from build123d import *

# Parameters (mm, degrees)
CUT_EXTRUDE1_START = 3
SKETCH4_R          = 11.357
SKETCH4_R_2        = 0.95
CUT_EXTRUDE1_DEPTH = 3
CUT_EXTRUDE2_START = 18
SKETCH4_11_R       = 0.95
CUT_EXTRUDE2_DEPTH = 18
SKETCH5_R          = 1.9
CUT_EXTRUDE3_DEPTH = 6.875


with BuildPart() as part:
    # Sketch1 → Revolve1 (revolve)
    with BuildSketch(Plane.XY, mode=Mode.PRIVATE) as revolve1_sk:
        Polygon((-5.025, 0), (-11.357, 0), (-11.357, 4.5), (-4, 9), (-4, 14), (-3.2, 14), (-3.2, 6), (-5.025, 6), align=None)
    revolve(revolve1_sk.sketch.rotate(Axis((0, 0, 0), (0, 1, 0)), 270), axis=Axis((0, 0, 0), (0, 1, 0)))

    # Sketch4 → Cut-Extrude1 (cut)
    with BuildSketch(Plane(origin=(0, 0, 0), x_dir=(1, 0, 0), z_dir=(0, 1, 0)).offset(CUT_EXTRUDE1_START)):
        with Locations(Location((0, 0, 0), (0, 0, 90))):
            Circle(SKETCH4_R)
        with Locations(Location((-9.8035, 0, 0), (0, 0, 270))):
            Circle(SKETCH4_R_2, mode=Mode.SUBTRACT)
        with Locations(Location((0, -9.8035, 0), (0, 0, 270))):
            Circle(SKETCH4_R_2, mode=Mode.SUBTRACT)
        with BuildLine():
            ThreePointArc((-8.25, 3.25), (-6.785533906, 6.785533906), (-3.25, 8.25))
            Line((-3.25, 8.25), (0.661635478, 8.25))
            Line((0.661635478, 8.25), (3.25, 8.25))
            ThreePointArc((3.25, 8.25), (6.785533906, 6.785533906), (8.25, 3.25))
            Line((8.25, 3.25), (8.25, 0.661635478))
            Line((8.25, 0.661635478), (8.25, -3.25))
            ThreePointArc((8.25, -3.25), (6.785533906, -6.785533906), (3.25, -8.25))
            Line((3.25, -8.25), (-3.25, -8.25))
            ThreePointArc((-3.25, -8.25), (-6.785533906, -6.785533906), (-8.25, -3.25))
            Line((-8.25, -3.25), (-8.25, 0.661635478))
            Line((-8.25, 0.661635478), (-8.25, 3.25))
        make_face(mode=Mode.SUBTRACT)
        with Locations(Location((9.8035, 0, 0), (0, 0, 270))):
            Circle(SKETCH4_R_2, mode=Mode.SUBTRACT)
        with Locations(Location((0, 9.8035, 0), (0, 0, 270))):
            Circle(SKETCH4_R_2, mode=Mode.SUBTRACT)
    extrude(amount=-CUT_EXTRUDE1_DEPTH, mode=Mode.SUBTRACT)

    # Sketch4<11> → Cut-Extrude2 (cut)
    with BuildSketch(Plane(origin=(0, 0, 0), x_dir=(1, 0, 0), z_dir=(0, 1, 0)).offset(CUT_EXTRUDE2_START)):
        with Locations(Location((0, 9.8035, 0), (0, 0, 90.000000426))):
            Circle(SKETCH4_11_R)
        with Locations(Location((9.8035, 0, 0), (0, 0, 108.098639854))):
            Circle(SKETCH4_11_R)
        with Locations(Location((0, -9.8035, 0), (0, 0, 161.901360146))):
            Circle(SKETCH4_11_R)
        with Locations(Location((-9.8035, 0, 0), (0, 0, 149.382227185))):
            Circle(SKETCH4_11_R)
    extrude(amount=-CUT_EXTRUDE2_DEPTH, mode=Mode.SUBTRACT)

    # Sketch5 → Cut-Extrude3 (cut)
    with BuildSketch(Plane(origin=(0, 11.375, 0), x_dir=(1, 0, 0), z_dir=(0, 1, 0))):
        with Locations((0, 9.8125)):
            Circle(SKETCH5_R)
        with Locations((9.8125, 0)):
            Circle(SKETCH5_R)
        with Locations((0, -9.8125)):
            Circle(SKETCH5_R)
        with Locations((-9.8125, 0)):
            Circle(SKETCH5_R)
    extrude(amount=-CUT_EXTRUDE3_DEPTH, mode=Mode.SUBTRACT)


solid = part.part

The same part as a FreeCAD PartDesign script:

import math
import FreeCAD as App
import Part
import Sketcher
from FreeCAD import Vector
Q = App.Units.Quantity

doc = App.newDocument("Part")
body = doc.addObject("PartDesign::Body", "Body")

# Sketch on XY plane
sketch1 = body.newObject("Sketcher::SketchObject", "Sketch")
sketch1.AttachmentSupport = (doc.getObject("XY_Plane"), [""])
sketch1.MapMode = "FlatFace"
sketch1.addGeometry([
    Part.LineSegment(Vector(-11.4, 0, 0), Vector(-5, 0, 0)),  # 0
    Part.LineSegment(Vector(-5, 0, 0), Vector(-5, 6, 0)),  # 1
    Part.LineSegment(Vector(-5, 6, 0), Vector(-3.2, 6, 0)),  # 2
    Part.LineSegment(Vector(-3.2, 6, 0), Vector(-3.2, 14, 0)),  # 3
    Part.LineSegment(Vector(-3.2, 14, 0), Vector(-4, 14, 0)),  # 4
    Part.LineSegment(Vector(-4, 14, 0), Vector(-4, 9, 0)),  # 5
    Part.LineSegment(Vector(-4, 9, 0), Vector(-11.4, 4.5, 0)),  # 6
    Part.LineSegment(Vector(-11.4, 4.5, 0), Vector(-11.4, 0, 0)),  # 7
], False)
sketch1.addConstraint([
    Sketcher.Constraint("Coincident", 0, 2, 1, 1),
    Sketcher.Constraint("Coincident", 1, 2, 2, 1),
    Sketcher.Constraint("Coincident", 2, 2, 3, 1),
    Sketcher.Constraint("Coincident", 3, 2, 4, 1),
    Sketcher.Constraint("Coincident", 4, 2, 5, 1),
    Sketcher.Constraint("Coincident", 5, 2, 6, 1),
    Sketcher.Constraint("Coincident", 6, 2, 7, 1),
    Sketcher.Constraint("Coincident", 7, 2, 0, 1),
    Sketcher.Constraint("Horizontal", 0),
    Sketcher.Constraint("Vertical", 1),
    Sketcher.Constraint("Horizontal", 2),
    Sketcher.Constraint("Vertical", 3),
    Sketcher.Constraint("Horizontal", 4),
    Sketcher.Constraint("Vertical", 5),
    Sketcher.Constraint("Vertical", 7),
    Sketcher.Constraint("PointOnObject", 0, 2, -1),
    Sketcher.Constraint("DistanceY", 1, 1, 1, 2, Q("6 mm")),
    Sketcher.Constraint("DistanceY", 3, 1, 3, 2, Q("8 mm")),
    Sketcher.Constraint("DistanceY", 5, 2, 5, 1, Q("5 mm")),
    Sketcher.Constraint("DistanceX", 4, 2, 4, 1, Q("0.8 mm")),
    Sketcher.Constraint("DistanceY", 7, 2, 7, 1, Q("4.5 mm")),
    Sketcher.Constraint("DistanceX", 4, 2, -1, 1, Q("4 mm")),
    Sketcher.Constraint("DistanceX", 0, 1, 0, 2, Q("6.332 mm")),
    Sketcher.Constraint("DistanceX", 2, 1, 2, 2, Q("1.825 mm")),
])
revolution = body.newObject("PartDesign::Revolution", "Revolution")
revolution.Profile = sketch1
revolution.ReferenceAxis = (sketch1, ["V_Axis"])
revolution.Angle = 360

# Sketch on XZ plane
sketch2 = body.newObject("Sketcher::SketchObject", "Sketch001")
sketch2.AttachmentSupport = (doc.getObject("XZ_Plane"), [""])
sketch2.MapMode = "FlatFace"
sketch2.AttachmentOffset = App.Placement(Vector(0, 0, -3), App.Rotation())
sketch2.addGeometry([
    Part.Circle(Vector(0, 0, 0), Vector(0, 0, 1), 11.4),  # 0
    Part.Circle(Vector(0, 9.8, 0), Vector(0, 0, 1), 0.9),  # 1
    Part.LineSegment(Vector(-8.2, 3.2, 0), Vector(-8.2, -3.2, 0)),  # 2
    Part.ArcOfCircle(Part.Circle(Vector(-3.2, -3.2, 0), Vector(0, 0, 1), 5), math.radians(180), math.radians(270)),  # 3
    Part.LineSegment(Vector(-3.2, -8.2, 0), Vector(3.2, -8.2, 0)),  # 4
    Part.ArcOfCircle(Part.Circle(Vector(3.2, -3.2, 0), Vector(0, 0, 1), 5), math.radians(-90), math.radians(0)),  # 5
    Part.LineSegment(Vector(8.2, -3.2, 0), Vector(8.2, 3.2, 0)),  # 6
    Part.ArcOfCircle(Part.Circle(Vector(3.2, 3.2, 0), Vector(0, 0, 1), 5), math.radians(0), math.radians(90)),  # 7
    Part.LineSegment(Vector(3.2, 8.2, 0), Vector(-3.2, 8.2, 0)),  # 8
    Part.ArcOfCircle(Part.Circle(Vector(-3.2, 3.2, 0), Vector(0, 0, 1), 5), math.radians(90), math.radians(180)),  # 9
    Part.Circle(Vector(9.8, 0, 0), Vector(0, 0, 1), 0.9),  # 10
    Part.Circle(Vector(-9.8, 0, 0), Vector(0, 0, 1), 0.9),  # 11
    Part.Circle(Vector(0, -9.8, 0), Vector(0, 0, 1), 0.9),  # 12
], False)
sketch2.addConstraint([
    Sketcher.Constraint("Tangent", 2, 2, 3, 1),
    Sketcher.Constraint("Tangent", 3, 2, 4, 1),
    Sketcher.Constraint("Tangent", 4, 2, 5, 1),
    Sketcher.Constraint("Tangent", 5, 2, 6, 1),
    Sketcher.Constraint("Tangent", 6, 2, 7, 1),
    Sketcher.Constraint("Tangent", 7, 2, 8, 1),
    Sketcher.Constraint("Tangent", 8, 2, 9, 1),
    Sketcher.Constraint("Tangent", 9, 2, 2, 1),
    Sketcher.Constraint("Vertical", 2),
    Sketcher.Constraint("Horizontal", 4),
    Sketcher.Constraint("Vertical", 6),
    Sketcher.Constraint("Horizontal", 8),
    Sketcher.Constraint("Coincident", 0, 3, -1, 1),
    Sketcher.Constraint("Equal", 3, 5),
    Sketcher.Constraint("Equal", 5, 7),
    Sketcher.Constraint("Equal", 7, 9),
    Sketcher.Constraint("Equal", 1, 10),
    Sketcher.Constraint("Equal", 10, 11),
    Sketcher.Constraint("Equal", 11, 12),
    Sketcher.Constraint("Symmetric", 3, 3, 7, 3, -1, 1),
    Sketcher.Constraint("Symmetric", 10, 3, 11, 3, -1, 1),
    Sketcher.Constraint("Symmetric", 1, 3, 12, 3, -1, 1),
    Sketcher.Constraint("PointOnObject", 1, 3, -2),
    Sketcher.Constraint("PointOnObject", 10, 3, -1),
    Sketcher.Constraint("Equal", 8, 2),
    Sketcher.Constraint("Radius", 3, Q("5 mm")),
    Sketcher.Constraint("Diameter", 1, Q("1.9 mm")),
    Sketcher.Constraint("Diameter", 0, Q("22.714 mm")),
    Sketcher.Constraint("DistanceX", 4, 1, 4, 2, Q("6.5 mm")),
    Sketcher.Constraint("DistanceY", -1, 1, 1, 3, Q("9.8035 mm")),
    Sketcher.Constraint("DistanceX", -1, 1, 10, 3, Q("9.8035 mm")),
])
pocket1 = body.newObject("PartDesign::Pocket", "Pocket")
pocket1.Profile = sketch2
pocket1.Length = 3
pocket1.Reversed = True

# Sketch on XZ plane
sketch3 = body.newObject("Sketcher::SketchObject", "Sketch002")
sketch3.AttachmentSupport = (doc.getObject("XZ_Plane"), [""])
sketch3.MapMode = "FlatFace"
sketch3.AttachmentOffset = App.Placement(Vector(0, 0, -18), App.Rotation())
sketch3.addGeometry([
    Part.Circle(Vector(0, -9.8, 0), Vector(0, 0, 1), 0.9),
    Part.Circle(Vector(9.8, 0, 0), Vector(0, 0, 1), 0.9),
    Part.Circle(Vector(0, 9.8, 0), Vector(0, 0, 1), 0.9),
    Part.Circle(Vector(-9.8, 0, 0), Vector(0, 0, 1), 0.9),
], False)
sketch3.addConstraint([
    Sketcher.Constraint("Equal", 0, 1),
    Sketcher.Constraint("Equal", 1, 2),
    Sketcher.Constraint("Equal", 2, 3),
    Sketcher.Constraint("Symmetric", 0, 3, 2, 3, -1, 1),
    Sketcher.Constraint("Symmetric", 1, 3, 3, 3, -1, 1),
    Sketcher.Constraint("PointOnObject", 0, 3, -2),
    Sketcher.Constraint("PointOnObject", 1, 3, -1),
    Sketcher.Constraint("Diameter", 0, Q("1.9 mm")),
    Sketcher.Constraint("DistanceY", 0, 3, 2, 3, Q("19.607 mm")),
    Sketcher.Constraint("DistanceX", 3, 3, 1, 3, Q("19.607 mm")),
])
pocket2 = body.newObject("PartDesign::Pocket", "Pocket001")
pocket2.Profile = sketch3
pocket2.Length = 18
pocket2.Reversed = True

# Sketch on XZ plane
sketch4 = body.newObject("Sketcher::SketchObject", "Sketch003")
sketch4.AttachmentSupport = (doc.getObject("XZ_Plane"), [""])
sketch4.MapMode = "FlatFace"
sketch4.AttachmentOffset = App.Placement(Vector(0, 0, -11.375), App.Rotation())
sketch4.addGeometry([
    Part.Circle(Vector(0, -9.8, 0), Vector(0, 0, 1), 1.9),
    Part.Circle(Vector(9.8, 0, 0), Vector(0, 0, 1), 1.9),
    Part.Circle(Vector(0, 9.8, 0), Vector(0, 0, 1), 1.9),
    Part.Circle(Vector(-9.8, 0, 0), Vector(0, 0, 1), 1.9),
], False)
sketch4.addConstraint([
    Sketcher.Constraint("Equal", 0, 1),
    Sketcher.Constraint("Equal", 1, 2),
    Sketcher.Constraint("Equal", 2, 3),
    Sketcher.Constraint("Symmetric", 0, 3, 2, 3, -1, 1),
    Sketcher.Constraint("Symmetric", 1, 3, 3, 3, -1, 1),
    Sketcher.Constraint("PointOnObject", 0, 3, -2),
    Sketcher.Constraint("PointOnObject", 1, 3, -1),
    Sketcher.Constraint("Diameter", 0, Q("3.8 mm")),
    Sketcher.Constraint("DistanceY", 0, 3, 2, 3, Q("19.625 mm")),
    Sketcher.Constraint("DistanceX", 3, 3, 1, 3, Q("19.625 mm")),
])
pocket3 = body.newObject("PartDesign::Pocket", "Pocket002")
pocket3.Profile = sketch4
pocket3.Length = 6.875
pocket3.Reversed = True

doc.recompute()
